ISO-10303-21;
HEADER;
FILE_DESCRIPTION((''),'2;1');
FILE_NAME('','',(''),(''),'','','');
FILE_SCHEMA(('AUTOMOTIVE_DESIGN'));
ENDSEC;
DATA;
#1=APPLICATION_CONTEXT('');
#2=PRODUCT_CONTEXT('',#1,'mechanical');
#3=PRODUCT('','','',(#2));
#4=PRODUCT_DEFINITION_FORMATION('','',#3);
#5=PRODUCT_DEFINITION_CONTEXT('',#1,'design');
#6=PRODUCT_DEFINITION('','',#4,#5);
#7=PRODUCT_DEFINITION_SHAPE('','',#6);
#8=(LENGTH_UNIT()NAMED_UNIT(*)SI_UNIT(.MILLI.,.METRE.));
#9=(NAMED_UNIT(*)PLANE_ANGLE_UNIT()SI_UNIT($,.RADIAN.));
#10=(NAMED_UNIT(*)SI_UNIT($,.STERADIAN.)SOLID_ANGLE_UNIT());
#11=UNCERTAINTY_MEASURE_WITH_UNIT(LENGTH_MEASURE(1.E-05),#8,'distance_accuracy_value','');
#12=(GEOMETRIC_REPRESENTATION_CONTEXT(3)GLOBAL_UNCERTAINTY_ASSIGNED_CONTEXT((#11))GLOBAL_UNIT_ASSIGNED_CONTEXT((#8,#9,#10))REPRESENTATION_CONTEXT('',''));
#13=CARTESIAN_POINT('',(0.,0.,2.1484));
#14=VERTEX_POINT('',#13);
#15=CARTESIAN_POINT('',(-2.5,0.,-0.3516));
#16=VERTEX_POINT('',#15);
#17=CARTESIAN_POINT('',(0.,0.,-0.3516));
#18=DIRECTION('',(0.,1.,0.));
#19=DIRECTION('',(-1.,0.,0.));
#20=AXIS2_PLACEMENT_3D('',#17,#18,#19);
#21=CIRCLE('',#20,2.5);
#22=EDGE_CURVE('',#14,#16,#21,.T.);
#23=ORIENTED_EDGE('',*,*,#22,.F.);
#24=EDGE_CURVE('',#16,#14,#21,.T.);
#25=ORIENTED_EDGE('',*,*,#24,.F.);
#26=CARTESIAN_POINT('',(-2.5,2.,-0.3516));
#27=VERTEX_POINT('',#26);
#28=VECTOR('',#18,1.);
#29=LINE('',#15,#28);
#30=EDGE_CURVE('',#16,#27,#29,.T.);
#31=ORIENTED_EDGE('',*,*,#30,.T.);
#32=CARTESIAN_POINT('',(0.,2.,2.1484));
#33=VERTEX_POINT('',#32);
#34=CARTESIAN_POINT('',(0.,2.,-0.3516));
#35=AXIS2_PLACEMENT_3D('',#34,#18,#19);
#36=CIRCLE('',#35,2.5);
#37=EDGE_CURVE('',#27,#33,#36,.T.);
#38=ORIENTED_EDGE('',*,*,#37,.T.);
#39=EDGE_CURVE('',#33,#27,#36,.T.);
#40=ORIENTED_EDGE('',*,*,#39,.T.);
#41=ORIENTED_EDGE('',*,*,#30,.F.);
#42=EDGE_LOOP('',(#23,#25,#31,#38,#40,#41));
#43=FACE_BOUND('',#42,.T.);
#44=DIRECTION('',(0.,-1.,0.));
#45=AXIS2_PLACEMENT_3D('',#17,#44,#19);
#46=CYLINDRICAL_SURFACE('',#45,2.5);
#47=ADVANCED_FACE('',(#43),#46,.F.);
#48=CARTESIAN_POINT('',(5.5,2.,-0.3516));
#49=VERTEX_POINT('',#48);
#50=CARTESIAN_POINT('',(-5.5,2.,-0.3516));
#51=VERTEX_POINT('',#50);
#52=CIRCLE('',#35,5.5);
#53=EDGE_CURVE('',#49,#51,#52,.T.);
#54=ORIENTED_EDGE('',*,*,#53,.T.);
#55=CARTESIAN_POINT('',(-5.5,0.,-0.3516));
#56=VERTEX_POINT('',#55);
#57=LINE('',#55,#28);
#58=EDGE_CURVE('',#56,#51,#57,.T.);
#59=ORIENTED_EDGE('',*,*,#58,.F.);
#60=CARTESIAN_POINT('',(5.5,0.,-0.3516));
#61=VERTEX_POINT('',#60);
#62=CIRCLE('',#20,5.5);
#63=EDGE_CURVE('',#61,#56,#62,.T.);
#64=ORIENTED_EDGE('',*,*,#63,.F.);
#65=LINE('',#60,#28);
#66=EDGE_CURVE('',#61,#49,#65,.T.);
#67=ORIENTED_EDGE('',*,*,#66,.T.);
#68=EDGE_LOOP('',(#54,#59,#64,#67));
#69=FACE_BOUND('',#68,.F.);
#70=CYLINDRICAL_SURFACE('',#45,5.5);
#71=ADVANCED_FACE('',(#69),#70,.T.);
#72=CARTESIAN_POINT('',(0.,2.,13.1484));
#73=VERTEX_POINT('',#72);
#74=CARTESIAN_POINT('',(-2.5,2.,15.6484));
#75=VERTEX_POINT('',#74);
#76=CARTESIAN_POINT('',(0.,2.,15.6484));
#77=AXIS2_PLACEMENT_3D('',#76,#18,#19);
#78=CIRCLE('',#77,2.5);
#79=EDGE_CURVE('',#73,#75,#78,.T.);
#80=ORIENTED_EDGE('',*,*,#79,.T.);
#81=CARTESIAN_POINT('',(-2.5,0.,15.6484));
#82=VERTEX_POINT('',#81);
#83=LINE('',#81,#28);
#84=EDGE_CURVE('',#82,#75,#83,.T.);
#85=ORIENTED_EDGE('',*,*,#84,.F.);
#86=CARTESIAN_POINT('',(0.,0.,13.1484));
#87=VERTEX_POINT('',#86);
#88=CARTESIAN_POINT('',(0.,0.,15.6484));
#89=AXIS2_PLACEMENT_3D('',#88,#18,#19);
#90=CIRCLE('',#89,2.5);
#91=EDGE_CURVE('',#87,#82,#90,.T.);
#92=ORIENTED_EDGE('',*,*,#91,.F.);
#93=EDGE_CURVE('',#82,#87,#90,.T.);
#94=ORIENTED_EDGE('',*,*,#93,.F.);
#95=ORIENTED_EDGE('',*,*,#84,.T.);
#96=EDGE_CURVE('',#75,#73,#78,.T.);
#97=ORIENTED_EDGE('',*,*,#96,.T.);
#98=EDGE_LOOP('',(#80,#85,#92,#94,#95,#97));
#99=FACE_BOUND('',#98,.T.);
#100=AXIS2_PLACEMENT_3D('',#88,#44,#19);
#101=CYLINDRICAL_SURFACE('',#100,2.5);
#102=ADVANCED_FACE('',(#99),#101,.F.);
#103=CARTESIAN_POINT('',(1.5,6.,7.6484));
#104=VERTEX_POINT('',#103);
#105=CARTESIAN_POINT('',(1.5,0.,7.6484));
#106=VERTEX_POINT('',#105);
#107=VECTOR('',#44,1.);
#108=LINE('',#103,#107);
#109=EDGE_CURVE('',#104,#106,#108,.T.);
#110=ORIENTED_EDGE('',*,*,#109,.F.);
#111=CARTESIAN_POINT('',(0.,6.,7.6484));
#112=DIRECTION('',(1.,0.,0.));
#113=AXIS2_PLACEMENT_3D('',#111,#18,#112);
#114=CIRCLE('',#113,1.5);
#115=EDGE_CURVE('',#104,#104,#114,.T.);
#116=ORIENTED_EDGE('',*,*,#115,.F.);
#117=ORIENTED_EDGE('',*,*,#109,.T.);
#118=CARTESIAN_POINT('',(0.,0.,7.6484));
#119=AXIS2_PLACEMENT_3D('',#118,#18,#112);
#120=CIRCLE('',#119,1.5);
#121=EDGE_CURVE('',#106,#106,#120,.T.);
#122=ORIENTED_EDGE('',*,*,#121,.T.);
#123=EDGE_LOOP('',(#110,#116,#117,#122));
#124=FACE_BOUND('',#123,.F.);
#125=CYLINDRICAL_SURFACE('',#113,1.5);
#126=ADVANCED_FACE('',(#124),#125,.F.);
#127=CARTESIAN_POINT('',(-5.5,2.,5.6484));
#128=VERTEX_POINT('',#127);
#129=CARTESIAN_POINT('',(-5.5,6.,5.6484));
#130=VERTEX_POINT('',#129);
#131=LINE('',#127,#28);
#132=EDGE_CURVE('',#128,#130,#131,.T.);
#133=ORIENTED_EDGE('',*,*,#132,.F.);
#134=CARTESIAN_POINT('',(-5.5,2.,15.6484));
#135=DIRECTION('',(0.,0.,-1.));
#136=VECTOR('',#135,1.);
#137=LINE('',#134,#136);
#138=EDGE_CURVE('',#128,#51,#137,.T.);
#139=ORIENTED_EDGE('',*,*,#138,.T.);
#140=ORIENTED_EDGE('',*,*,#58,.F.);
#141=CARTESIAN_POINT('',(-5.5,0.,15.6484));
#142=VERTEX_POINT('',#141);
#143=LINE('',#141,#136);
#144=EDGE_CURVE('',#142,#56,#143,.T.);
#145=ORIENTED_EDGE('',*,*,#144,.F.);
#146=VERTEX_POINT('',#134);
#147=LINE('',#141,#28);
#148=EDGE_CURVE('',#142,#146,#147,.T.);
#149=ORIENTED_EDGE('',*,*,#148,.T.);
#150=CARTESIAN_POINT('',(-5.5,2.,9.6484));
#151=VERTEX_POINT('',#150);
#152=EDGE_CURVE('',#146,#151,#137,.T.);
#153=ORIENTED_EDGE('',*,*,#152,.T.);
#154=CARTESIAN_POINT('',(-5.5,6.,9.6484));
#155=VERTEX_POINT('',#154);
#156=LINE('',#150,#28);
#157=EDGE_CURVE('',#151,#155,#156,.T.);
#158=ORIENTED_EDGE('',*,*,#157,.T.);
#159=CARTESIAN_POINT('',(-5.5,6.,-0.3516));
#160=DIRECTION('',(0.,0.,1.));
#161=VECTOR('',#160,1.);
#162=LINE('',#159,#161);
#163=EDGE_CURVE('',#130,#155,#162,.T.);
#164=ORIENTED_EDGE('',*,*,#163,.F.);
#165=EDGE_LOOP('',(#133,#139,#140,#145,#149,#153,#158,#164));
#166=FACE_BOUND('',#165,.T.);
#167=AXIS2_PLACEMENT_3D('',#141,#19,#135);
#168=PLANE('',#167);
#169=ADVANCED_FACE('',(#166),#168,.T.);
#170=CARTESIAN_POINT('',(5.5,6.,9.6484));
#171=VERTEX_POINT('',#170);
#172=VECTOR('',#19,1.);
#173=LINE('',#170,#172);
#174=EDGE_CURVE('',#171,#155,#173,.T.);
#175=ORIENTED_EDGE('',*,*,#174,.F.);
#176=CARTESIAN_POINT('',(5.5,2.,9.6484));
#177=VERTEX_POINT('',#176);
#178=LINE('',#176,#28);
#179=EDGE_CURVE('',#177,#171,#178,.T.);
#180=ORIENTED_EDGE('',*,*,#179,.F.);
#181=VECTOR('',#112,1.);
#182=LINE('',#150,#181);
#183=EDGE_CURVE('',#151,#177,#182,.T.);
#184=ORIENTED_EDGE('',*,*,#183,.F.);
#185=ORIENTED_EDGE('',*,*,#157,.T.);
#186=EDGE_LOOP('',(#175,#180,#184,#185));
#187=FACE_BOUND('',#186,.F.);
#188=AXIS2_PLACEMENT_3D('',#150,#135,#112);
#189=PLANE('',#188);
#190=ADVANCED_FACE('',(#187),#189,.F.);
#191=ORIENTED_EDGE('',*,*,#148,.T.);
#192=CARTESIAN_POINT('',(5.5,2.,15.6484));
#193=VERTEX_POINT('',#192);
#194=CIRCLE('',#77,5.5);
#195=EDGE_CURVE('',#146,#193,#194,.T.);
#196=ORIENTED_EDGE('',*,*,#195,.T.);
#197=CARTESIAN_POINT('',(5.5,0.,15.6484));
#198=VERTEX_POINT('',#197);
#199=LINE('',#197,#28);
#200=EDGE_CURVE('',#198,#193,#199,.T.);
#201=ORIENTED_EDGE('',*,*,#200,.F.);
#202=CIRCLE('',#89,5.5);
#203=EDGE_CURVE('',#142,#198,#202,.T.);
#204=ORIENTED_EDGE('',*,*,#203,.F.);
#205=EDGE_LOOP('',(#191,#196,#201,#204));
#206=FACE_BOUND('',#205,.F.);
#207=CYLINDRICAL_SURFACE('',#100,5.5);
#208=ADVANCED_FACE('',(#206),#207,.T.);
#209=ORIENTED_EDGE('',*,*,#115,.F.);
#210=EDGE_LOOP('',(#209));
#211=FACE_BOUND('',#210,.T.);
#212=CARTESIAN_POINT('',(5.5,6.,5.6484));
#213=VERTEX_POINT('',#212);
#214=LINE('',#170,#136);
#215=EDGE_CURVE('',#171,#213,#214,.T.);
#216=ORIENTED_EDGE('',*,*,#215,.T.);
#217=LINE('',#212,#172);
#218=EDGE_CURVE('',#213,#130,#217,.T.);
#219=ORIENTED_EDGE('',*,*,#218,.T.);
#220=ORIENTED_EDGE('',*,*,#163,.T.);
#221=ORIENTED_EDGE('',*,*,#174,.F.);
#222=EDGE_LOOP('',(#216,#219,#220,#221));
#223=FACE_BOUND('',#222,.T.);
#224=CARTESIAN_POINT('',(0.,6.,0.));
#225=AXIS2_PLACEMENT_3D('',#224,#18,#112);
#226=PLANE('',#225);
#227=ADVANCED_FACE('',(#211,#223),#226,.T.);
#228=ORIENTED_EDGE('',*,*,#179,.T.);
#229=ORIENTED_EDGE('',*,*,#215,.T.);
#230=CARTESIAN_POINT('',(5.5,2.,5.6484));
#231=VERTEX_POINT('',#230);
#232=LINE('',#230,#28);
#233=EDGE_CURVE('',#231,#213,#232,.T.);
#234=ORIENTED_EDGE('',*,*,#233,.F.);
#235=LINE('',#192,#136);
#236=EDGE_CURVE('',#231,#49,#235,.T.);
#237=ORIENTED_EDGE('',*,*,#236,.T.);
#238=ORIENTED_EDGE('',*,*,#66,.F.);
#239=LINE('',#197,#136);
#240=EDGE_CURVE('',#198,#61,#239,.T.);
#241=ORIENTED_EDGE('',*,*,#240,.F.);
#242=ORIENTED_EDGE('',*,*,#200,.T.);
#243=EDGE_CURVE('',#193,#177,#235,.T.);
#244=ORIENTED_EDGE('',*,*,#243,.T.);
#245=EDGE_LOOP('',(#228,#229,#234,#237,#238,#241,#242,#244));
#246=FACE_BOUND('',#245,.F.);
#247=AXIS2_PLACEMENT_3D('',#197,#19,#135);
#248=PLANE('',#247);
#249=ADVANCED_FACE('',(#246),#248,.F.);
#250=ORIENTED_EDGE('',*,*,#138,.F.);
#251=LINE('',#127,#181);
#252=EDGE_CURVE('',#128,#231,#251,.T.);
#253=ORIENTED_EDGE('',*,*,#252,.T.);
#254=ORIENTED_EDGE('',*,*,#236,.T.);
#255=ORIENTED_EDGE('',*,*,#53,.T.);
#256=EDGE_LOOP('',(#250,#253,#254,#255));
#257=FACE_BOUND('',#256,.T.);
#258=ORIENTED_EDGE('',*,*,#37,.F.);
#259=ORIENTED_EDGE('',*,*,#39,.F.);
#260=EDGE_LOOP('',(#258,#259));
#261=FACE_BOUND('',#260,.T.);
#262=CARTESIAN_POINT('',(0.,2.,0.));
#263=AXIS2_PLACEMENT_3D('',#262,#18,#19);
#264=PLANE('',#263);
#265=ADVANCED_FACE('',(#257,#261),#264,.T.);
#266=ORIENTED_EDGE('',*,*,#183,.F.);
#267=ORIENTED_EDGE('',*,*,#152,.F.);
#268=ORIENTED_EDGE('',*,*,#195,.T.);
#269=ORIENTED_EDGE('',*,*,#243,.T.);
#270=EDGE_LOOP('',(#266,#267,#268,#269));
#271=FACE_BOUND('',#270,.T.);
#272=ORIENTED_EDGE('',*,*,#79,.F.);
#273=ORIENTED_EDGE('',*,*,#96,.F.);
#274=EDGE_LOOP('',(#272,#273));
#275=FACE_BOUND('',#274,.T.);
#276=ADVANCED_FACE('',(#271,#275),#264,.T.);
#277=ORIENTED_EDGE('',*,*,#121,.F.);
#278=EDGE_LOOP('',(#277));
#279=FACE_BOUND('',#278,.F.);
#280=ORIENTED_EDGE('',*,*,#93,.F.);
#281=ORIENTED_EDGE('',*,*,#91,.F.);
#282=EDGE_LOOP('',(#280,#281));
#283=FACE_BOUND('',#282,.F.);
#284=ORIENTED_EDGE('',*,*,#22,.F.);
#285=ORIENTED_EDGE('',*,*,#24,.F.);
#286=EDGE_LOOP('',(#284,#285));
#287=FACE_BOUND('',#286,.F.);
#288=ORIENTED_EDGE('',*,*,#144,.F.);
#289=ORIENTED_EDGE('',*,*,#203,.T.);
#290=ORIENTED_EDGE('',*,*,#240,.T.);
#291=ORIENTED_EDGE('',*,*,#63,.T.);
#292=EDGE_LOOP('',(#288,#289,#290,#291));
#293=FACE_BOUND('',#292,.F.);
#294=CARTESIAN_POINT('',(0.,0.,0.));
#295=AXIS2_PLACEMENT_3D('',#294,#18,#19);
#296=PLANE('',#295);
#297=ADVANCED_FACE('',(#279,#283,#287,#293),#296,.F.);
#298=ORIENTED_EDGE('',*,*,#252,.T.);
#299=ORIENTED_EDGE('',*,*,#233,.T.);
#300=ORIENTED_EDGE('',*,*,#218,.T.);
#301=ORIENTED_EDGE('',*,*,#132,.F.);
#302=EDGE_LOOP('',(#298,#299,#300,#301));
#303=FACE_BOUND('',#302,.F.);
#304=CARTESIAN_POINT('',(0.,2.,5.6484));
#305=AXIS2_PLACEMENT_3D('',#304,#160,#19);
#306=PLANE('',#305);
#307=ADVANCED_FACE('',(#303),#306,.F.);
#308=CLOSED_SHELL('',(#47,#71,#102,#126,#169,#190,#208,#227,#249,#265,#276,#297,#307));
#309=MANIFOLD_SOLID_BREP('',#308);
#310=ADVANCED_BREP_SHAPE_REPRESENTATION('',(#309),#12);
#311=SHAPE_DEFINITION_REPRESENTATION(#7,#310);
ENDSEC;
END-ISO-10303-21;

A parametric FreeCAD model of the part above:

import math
import FreeCAD as App
import Part
import Sketcher

V = App.Vector
Q = App.Units.Quantity

doc = App.newDocument("Part")
params = doc.addObject("Spreadsheet::Sheet", "Params")
for row, (alias, value) in enumerate([
    ("sketch1_diameter", "5 mm"),
    ("sketch1_radius", "5.5 mm"),
    ("sketch1_height", "16 mm"),
    ("pad1_length", "2 mm"),
    ("sketch2_height", "4 mm"),
    ("sketch2_width", "11 mm"),
    ("pad2_length", "4 mm"),
    ("sketch3_diameter", "3 mm"),
    ("pocket1_length", "16.6375 mm"),
], start=1):
    params.set(f"A{row}", alias)
    params.set(f"B{row}", "=" + value)
    params.setAlias(f"B{row}", alias)

body = doc.addObject("PartDesign::Body", "Body")

# Sketch on XZ plane
sketch1 = doc.addObject("Sketcher::SketchObject", "Sketch")
body.addObject(sketch1)
sketch1.AttachmentSupport = (doc.XZ_Plane, [""])
sketch1.MapMode = "FlatFace"
sketch1.addGeometry(Part.ArcOfCircle(Part.Circle(V(0, 15.6484, 0), V(0, 0, 1), 5.5), math.radians(0), math.radians(180)), False)
sketch1.addGeometry(Part.LineSegment(V(5.5, 15.6484, 0), V(5.5, -0.3516, 0)), False)
sketch1.addGeometry(Part.ArcOfCircle(Part.Circle(V(0, -0.3516, 0), V(0, 0, 1), 5.5), math.radians(180), math.radians(360)), False)
sketch1.addGeometry(Part.LineSegment(V(-5.5, -0.3516, 0), V(-5.5, 15.6484, 0)), False)
sketch1.addGeometry(Part.Circle(V(0, 15.6484, 0), V(0, 0, 1), 2.5), False)
sketch1.addGeometry(Part.Circle(V(0, -0.3516, 0), V(0, 0, 1), 2.5), False)
sketch1.addConstraint(Sketcher.Constraint("Tangent", 0, 1, 1, 1))
sketch1.addConstraint(Sketcher.Constraint("Tangent", 1, 2, 2, 2))
sketch1.addConstraint(Sketcher.Constraint("Tangent", 2, 1, 3, 1))
sketch1.addConstraint(Sketcher.Constraint("Tangent", 3, 2, 0, 2))
sketch1.addConstraint(Sketcher.Constraint("Vertical", 1))
sketch1.addConstraint(Sketcher.Constraint("Vertical", 3))
sketch1.addConstraint(Sketcher.Constraint("Coincident", 4, 3, 0, 3))
sketch1.addConstraint(Sketcher.Constraint("Coincident", 5, 3, 2, 3))
sketch1.addConstraint(Sketcher.Constraint("Equal", 4, 5))
sketch1.addConstraint(Sketcher.Constraint("PointOnObject", 0, 3, -2))
sketch1.addConstraint(Sketcher.Constraint("Diameter", 4, Q("5 mm")))
sketch1.addConstraint(Sketcher.Constraint("Radius", 0, Q("5.5 mm")))
sketch1.addConstraint(Sketcher.Constraint("DistanceY", 1, 2, 1, 1, Q("16 mm")))
sketch1.addConstraint(Sketcher.Constraint("DistanceY", -1, 1, 0, 3, Q("15.6484 mm")))
sketch1.setExpression("Constraints[10]", "Params.sketch1_diameter")
sketch1.setExpression("Constraints[11]", "Params.sketch1_radius")
sketch1.setExpression("Constraints[12]", "Params.sketch1_height")
pad1 = doc.addObject("PartDesign::Pad", "Pad")
body.addObject(pad1)
pad1.Profile = sketch1
pad1.setExpression("Length", "Params.pad1_length")
pad1.Reversed = True

# Sketch on XZ plane
sketch2 = doc.addObject("Sketcher::SketchObject", "Sketch001")
body.addObject(sketch2)
sketch2.AttachmentSupport = (doc.XZ_Plane, [""])
sketch2.MapMode = "FlatFace"
sketch2.AttachmentOffset = App.Placement(V(0, 0, -2), App.Rotation())
sketch2.addGeometry(Part.LineSegment(V(-5.5, 9.6484, 0), V(5.5, 9.6484, 0)), False)
sketch2.addGeometry(Part.LineSegment(V(5.5, 9.6484, 0), V(5.5, 5.6484, 0)), False)
sketch2.addGeometry(Part.LineSegment(V(5.5, 5.6484, 0), V(-5.5, 5.6484, 0)), False)
sketch2.addGeometry(Part.LineSegment(V(-5.5, 5.6484, 0), V(-5.5, 9.6484, 0)), False)
sketch2.addConstraint(Sketcher.Constraint("Coincident", 0, 2, 1, 1))
sketch2.addConstraint(Sketcher.Constraint("Coincident", 1, 2, 2, 1))
sketch2.addConstraint(Sketcher.Constraint("Coincident", 2, 2, 3, 1))
sketch2.addConstraint(Sketcher.Constraint("Coincident", 3, 2, 0, 1))
sketch2.addConstraint(Sketcher.Constraint("Horizontal", 0))
sketch2.addConstraint(Sketcher.Constraint("Vertical", 1))
sketch2.addConstraint(Sketcher.Constraint("Horizontal", 2))
sketch2.addConstraint(Sketcher.Constraint("Vertical", 3))
sketch2.addConstraint(Sketcher.Constraint("DistanceY", 1, 2, 1, 1, Q("4 mm")))
sketch2.addConstraint(Sketcher.Constraint("DistanceX", 0, 1, 0, 2, Q("11 mm")))
sketch2.addConstraint(Sketcher.Constraint("DistanceX", -1, 1, 0, 2, Q("5.5 mm")))
sketch2.addConstraint(Sketcher.Constraint("DistanceY", -1, 1, 0, 2, Q("9.6484 mm")))
sketch2.setExpression("Constraints[8]", "Params.sketch2_height")
sketch2.setExpression("Constraints[9]", "Params.sketch2_width")
pad2 = doc.addObject("PartDesign::Pad", "Pad001")
body.addObject(pad2)
pad2.Profile = sketch2
pad2.setExpression("Length", "Params.pad2_length")
pad2.Reversed = True

# Sketch on XZ plane
sketch3 = doc.addObject("Sketcher::SketchObject", "Sketch002")
body.addObject(sketch3)
sketch3.AttachmentSupport = (doc.XZ_Plane, [""])
sketch3.MapMode = "FlatFace"
sketch3.AttachmentOffset = App.Placement(V(0, 0, -6), App.Rotation())
sketch3.addGeometry(Part.Circle(V(0, 7.6484, 0), V(0, 0, 1), 1.5), False)
sketch3.addConstraint(Sketcher.Constraint("PointOnObject", 0, 3, -2))
sketch3.addConstraint(Sketcher.Constraint("Diameter", 0, Q("3 mm")))
sketch3.addConstraint(Sketcher.Constraint("DistanceY", -1, 1, 0, 3, Q("7.6484 mm")))
sketch3.setExpression("Constraints[1]", "Params.sketch3_diameter")
pocket1 = doc.addObject("PartDesign::Pocket", "Pocket")
body.addObject(pocket1)
pocket1.Profile = sketch3
pocket1.setExpression("Length", "Params.pocket1_length")
pocket1.Reversed = True

doc.recompute()
